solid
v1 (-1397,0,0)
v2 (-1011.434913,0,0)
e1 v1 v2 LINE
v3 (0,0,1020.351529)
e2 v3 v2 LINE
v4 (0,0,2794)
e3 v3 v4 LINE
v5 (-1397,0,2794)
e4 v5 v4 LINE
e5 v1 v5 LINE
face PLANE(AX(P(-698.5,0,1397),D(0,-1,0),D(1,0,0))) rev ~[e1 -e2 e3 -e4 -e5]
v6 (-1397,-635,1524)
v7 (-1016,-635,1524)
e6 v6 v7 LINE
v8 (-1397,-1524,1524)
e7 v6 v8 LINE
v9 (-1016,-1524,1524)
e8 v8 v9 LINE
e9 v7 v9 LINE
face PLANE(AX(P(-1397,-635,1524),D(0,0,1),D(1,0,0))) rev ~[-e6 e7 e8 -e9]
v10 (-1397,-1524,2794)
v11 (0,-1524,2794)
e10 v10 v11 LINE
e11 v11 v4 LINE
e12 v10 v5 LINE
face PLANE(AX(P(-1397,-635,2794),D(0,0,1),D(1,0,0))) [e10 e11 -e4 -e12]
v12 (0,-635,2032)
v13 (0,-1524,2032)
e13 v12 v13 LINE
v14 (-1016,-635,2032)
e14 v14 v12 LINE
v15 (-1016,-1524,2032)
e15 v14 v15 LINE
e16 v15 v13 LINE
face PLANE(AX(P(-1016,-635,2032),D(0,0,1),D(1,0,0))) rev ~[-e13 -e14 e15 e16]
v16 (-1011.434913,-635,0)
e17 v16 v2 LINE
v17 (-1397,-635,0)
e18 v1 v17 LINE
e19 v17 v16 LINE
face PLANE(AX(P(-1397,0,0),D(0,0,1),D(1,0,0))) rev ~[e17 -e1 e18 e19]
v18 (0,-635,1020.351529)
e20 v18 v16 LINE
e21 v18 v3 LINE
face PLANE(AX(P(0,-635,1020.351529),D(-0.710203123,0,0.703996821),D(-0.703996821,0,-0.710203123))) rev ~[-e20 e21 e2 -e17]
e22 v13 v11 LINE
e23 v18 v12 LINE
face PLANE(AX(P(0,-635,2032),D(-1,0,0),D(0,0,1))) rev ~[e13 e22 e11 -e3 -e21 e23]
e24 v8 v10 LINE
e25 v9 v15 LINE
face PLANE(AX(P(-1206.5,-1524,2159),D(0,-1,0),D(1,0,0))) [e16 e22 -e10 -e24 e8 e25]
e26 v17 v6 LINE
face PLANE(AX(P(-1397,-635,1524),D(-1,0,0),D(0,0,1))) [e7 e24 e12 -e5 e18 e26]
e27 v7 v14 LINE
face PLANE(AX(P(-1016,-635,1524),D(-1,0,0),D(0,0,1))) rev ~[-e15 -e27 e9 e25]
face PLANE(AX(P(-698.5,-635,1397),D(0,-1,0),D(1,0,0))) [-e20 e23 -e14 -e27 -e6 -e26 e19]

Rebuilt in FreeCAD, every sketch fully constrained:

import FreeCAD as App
import Part
import Sketcher
Q = App.Units.Quantity

doc = App.newDocument("Part")
params = doc.addObject("Spreadsheet::Sheet", "Params")
for row, (alias, value) in enumerate([
    ("sketch1_width", "55 in"),
    ("sketch1_height", "110 in"),
    ("pad1_length", "25 in"),
    ("sketch2_width", "40 in"),
    ("sketch2_height", "30 in"),
    ("pad2_length", "35 in"),
    ("sketch3_width", "15 in"),
    ("sketch3_height", "50 in"),
    ("pad3_length", "35 in"),
    ("pocket1_length", "37.4 in"),
], start=1):
    params.set(f"A{row}", alias)
    params.set(f"B{row}", "=" + value)
    params.setAlias(f"B{row}", alias)

body = doc.addObject("PartDesign::Body", "Body")

sketch1 = body.newObject("Sketcher::SketchObject", "Sketch")
sketch1.AttachmentSupport = (doc.getObject("XZ_Plane"), [""])
sketch1.MapMode = "FlatFace"
sketch1.addGeometry([
    Part.LineSegment(App.Vector(-1397, 2794, 0), App.Vector(-1397, 0, 0)),
    Part.LineSegment(App.Vector(-1397, 0, 0), App.Vector(0, 0, 0)),
    Part.LineSegment(App.Vector(0, 0, 0), App.Vector(0, 2794, 0)),
    Part.LineSegment(App.Vector(0, 2794, 0), App.Vector(-1397, 2794, 0)),
], False)
sketch1.addConstraint([
    Sketcher.Constraint("Coincident", 0, 2, 1, 1),
    Sketcher.Constraint("Coincident", 1, 2, 2, 1),
    Sketcher.Constraint("Coincident", 2, 2, 3, 1),
    Sketcher.Constraint("Coincident", 3, 2, 0, 1),
    Sketcher.Constraint("Vertical", 0),
    Sketcher.Constraint("Horizontal", 1),
    Sketcher.Constraint("Vertical", 2),
    Sketcher.Constraint("Horizontal", 3),
    Sketcher.Constraint("Coincident", 1, 2, -1, 1),
    Sketcher.Constraint("DistanceX", 1, 1, 1, 2, Q("55 in")),
    Sketcher.Constraint("DistanceY", 0, 2, 0, 1, Q("110 in")),
])
sketch1.setExpression("Constraints[9]", "Params.sketch1_width")
sketch1.setExpression("Constraints[10]", "Params.sketch1_height")
pad1 = body.newObject("PartDesign::Pad", "Pad")
pad1.Profile = sketch1
pad1.setExpression("Length", "Params.pad1_length")

sketch2 = body.newObject("Sketcher::SketchObject", "Sketch001")
sketch2.AttachmentSupport = (doc.getObject("XZ_Plane"), [""])
sketch2.MapMode = "FlatFace"
sketch2.AttachmentOffset = App.Placement(App.Vector(0, 0, 25 * 25.4), App.Rotation())
sketch2.addGeometry([
    Part.LineSegment(App.Vector(-1016, 2794, 0), App.Vector(-1016, 2032, 0)),
    Part.LineSegment(App.Vector(-1016, 2032, 0), App.Vector(0, 2032, 0)),
    Part.LineSegment(App.Vector(0, 2032, 0), App.Vector(0, 2794, 0)),
    Part.LineSegment(App.Vector(0, 2794, 0), App.Vector(-1016, 2794, 0)),
], False)
sketch2.addConstraint([
    Sketcher.Constraint("Coincident", 0, 2, 1, 1),
    Sketcher.Constraint("Coincident", 1, 2, 2, 1),
    Sketcher.Constraint("Coincident", 2, 2, 3, 1),
    Sketcher.Constraint("Coincident", 3, 2, 0, 1),
    Sketcher.Constraint("Vertical", 0),
    Sketcher.Constraint("Horizontal", 1),
    Sketcher.Constraint("Vertical", 2),
    Sketcher.Constraint("Horizontal", 3),
    Sketcher.Constraint("PointOnObject", 1, 2, -2),
    Sketcher.Constraint("DistanceX", 1, 1, 1, 2, Q("40 in")),
    Sketcher.Constraint("DistanceY", 0, 2, 0, 1, Q("30 in")),
    Sketcher.Constraint("DistanceY", -1, 1, 0, 2, Q("80 in")),
])
sketch2.setExpression("Constraints[9]", "Params.sketch2_width")
sketch2.setExpression("Constraints[10]", "Params.sketch2_height")
pad2 = body.newObject("PartDesign::Pad", "Pad001")
pad2.Profile = sketch2
pad2.setExpression("Length", "Params.pad2_length")

sketch3 = body.newObject("Sketcher::SketchObject", "Sketch002")
sketch3.AttachmentSupport = (doc.getObject("XZ_Plane"), [""])
sketch3.MapMode = "FlatFace"
sketch3.AttachmentOffset = App.Placement(App.Vector(0, 0, 25 * 25.4), App.Rotation())
sketch3.addGeometry([
    Part.LineSegment(App.Vector(-1397, 2794, 0), App.Vector(-1397, 1524, 0)),
    Part.LineSegment(App.Vector(-1397, 1524, 0), App.Vector(-1016, 1524, 0)),
    Part.LineSegment(App.Vector(-1016, 1524, 0), App.Vector(-1016, 2794, 0)),
    Part.LineSegment(App.Vector(-1016, 2794, 0), App.Vector(-1397, 2794, 0)),
], False)
sketch3.addConstraint([
    Sketcher.Constraint("Coincident", 0, 2, 1, 1),
    Sketcher.Constraint("Coincident", 1, 2, 2, 1),
    Sketcher.Constraint("Coincident", 2, 2, 3, 1),
    Sketcher.Constraint("Coincident", 3, 2, 0, 1),
    Sketcher.Constraint("Vertical", 0),
    Sketcher.Constraint("Horizontal", 1),
    Sketcher.Constraint("Vertical", 2),
    Sketcher.Constraint("Horizontal", 3),
    Sketcher.Constraint("DistanceX", 1, 1, 1, 2, Q("15 in")),
    Sketcher.Constraint("DistanceY", 0, 2, 0, 1, Q("50 in")),
    Sketcher.Constraint("DistanceX", 0, 2, -1, 1, Q("55 in")),
    Sketcher.Constraint("DistanceY", -1, 1, 0, 2, Q("60 in")),
])
sketch3.setExpression("Constraints[8]", "Params.sketch3_width")
sketch3.setExpression("Constraints[9]", "Params.sketch3_height")
pad3 = body.newObject("PartDesign::Pad", "Pad002")
pad3.Profile = sketch3
pad3.setExpression("Length", "Params.pad3_length")

sketch4 = body.newObject("Sketcher::SketchObject", "Sketch003")
sketch4.AttachmentSupport = (doc.getObject("XZ_Plane"), [""])
sketch4.MapMode = "FlatFace"
sketch4.AttachmentOffset = App.Placement(App.Vector(0, 0, 25 * 25.4), App.Rotation())
sketch4.addGeometry([
    Part.LineSegment(App.Vector(0, 1020, 0), App.Vector(-1011, 0, 0)),
    Part.LineSegment(App.Vector(-1011, 0, 0), App.Vector(0, 0, 0)),
    Part.LineSegment(App.Vector(0, 0, 0), App.Vector(0, 1020, 0)),
], False)
sketch4.addConstraint([
    Sketcher.Constraint("Coincident", 0, 2, 1, 1),
    Sketcher.Constraint("Coincident", 1, 2, 2, 1),
    Sketcher.Constraint("Coincident", 2, 2, 0, 1),
    Sketcher.Constraint("Horizontal", 1),
    Sketcher.Constraint("Vertical", 2),
    Sketcher.Constraint("Coincident", 1, 2, -1, 1),
    Sketcher.Constraint("DistanceY", 2, 1, 2, 2, 1020.351529),
    Sketcher.Constraint("DistanceX", 1, 1, 1, 2, 1011.434913),
])
pocket1 = body.newObject("PartDesign::Pocket", "Pocket")
pocket1.Profile = sketch4
pocket1.setExpression("Length", "Params.pocket1_length")

doc.recompute()
